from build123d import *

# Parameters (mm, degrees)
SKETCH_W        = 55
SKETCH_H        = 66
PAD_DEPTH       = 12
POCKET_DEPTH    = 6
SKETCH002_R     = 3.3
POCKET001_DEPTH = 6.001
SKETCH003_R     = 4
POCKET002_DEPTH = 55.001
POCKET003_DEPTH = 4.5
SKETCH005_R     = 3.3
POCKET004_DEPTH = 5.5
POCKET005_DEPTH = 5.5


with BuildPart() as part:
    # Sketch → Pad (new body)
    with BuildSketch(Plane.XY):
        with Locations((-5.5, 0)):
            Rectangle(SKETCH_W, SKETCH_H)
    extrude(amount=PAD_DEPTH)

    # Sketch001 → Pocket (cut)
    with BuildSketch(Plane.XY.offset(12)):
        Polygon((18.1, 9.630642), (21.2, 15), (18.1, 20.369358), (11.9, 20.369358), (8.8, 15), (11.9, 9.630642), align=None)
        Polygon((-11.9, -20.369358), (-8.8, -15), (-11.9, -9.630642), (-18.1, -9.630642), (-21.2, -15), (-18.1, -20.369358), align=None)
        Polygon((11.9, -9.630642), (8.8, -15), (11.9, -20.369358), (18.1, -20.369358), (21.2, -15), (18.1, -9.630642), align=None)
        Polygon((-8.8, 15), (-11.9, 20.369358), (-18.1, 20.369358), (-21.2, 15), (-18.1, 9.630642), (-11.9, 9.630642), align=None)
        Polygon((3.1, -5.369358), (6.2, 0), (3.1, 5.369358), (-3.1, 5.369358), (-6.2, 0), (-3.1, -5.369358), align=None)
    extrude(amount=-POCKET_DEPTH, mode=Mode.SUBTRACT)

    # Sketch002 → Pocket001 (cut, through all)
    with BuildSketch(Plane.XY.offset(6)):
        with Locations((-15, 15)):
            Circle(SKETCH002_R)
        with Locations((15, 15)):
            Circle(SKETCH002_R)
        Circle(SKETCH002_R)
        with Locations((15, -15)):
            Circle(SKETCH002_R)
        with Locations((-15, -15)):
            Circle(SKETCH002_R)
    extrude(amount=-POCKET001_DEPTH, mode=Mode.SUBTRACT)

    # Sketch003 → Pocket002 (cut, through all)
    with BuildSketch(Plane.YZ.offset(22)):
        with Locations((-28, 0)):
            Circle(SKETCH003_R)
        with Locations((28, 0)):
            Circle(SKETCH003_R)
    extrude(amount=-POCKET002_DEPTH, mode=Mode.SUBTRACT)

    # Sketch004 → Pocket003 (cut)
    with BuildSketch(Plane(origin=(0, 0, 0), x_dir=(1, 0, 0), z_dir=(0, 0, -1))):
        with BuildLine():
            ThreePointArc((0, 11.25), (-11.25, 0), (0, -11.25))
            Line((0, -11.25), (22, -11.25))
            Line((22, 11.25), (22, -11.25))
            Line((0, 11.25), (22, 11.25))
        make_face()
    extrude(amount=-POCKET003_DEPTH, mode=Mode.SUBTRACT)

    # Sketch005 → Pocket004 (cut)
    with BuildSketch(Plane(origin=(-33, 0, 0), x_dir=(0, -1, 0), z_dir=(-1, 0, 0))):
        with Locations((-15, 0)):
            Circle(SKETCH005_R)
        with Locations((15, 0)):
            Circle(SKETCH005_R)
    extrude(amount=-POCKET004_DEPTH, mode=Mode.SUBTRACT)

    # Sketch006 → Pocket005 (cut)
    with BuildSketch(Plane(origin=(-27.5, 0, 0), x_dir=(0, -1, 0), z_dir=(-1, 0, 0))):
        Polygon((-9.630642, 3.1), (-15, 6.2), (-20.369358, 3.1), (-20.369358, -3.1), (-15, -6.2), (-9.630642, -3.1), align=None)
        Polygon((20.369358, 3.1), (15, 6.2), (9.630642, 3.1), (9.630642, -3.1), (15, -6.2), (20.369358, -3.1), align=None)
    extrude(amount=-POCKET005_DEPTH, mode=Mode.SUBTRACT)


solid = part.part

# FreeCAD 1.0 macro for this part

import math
import FreeCAD as App
import Part
import Sketcher
Q = App.Units.Quantity

doc = App.newDocument("Part")
body = doc.addObject("PartDesign::Body", "Body")

sketch1 = body.newObject("Sketcher::SketchObject", "Sketch")
sketch1.AttachmentSupport = (doc.getObject("XY_Plane"), [""])
sketch1.MapMode = "FlatFace"
sketch1.addGeometry([
    Part.LineSegment(App.Vector(-33, 33, 0), App.Vector(-33, -33, 0)),
    Part.LineSegment(App.Vector(-33, -33, 0), App.Vector(22, -33, 0)),
    Part.LineSegment(App.Vector(22, -33, 0), App.Vector(22, 33, 0)),
    Part.LineSegment(App.Vector(22, 33, 0), App.Vector(-33, 33, 0)),
], False)
sketch1.addConstraint([
    Sketcher.Constraint("Coincident", 0, 2, 1, 1),
    Sketcher.Constraint("Coincident", 1, 2, 2, 1),
    Sketcher.Constraint("Coincident", 2, 2, 3, 1),
    Sketcher.Constraint("Coincident", 3, 2, 0, 1),
    Sketcher.Constraint("Vertical", 0),
    Sketcher.Constraint("Horizontal", 1),
    Sketcher.Constraint("Vertical", 2),
    Sketcher.Constraint("Horizontal", 3),
    Sketcher.Constraint("DistanceX", 1, 1, 1, 2, Q("55 mm")),
    Sketcher.Constraint("DistanceY", 0, 2, 0, 1, Q("66 mm")),
    Sketcher.Constraint("DistanceX", 0, 2, -1, 1, Q("33 mm")),
    Sketcher.Constraint("DistanceY", 0, 2, -1, 1, Q("33 mm")),
])
pad1 = body.newObject("PartDesign::Pad", "Pad")
pad1.Profile = sketch1
pad1.Length = 12

sketch2 = body.newObject("Sketcher::SketchObject", "Sketch001")
sketch2.AttachmentSupport = (doc.getObject("XY_Plane"), [""])
sketch2.MapMode = "FlatFace"
sketch2.AttachmentOffset = App.Placement(App.Vector(0, 0, 12), App.Rotation())
sketch2.addGeometry([
    Part.LineSegment(App.Vector(18, 10, 0), App.Vector(21, 15, 0)),
    Part.LineSegment(App.Vector(21, 15, 0), App.Vector(18, 20, 0)),
    Part.LineSegment(App.Vector(18, 20, 0), App.Vector(12, 20, 0)),
    Part.LineSegment(App.Vector(12, 20, 0), App.Vector(9, 15, 0)),
    Part.LineSegment(App.Vector(9, 15, 0), App.Vector(12, 10, 0)),
    Part.LineSegment(App.Vector(12, 10, 0), App.Vector(18, 10, 0)),
    Part.LineSegment(App.Vector(-12, -20, 0), App.Vector(-9, -15, 0)),
    Part.LineSegment(App.Vector(-9, -15, 0), App.Vector(-12, -10, 0)),
    Part.LineSegment(App.Vector(-12, -10, 0), App.Vector(-18, -10, 0)),
    Part.LineSegment(App.Vector(-18, -10, 0), App.Vector(-21, -15, 0)),
    Part.LineSegment(App.Vector(-21, -15, 0), App.Vector(-18, -20, 0)),
    Part.LineSegment(App.Vector(-18, -20, 0), App.Vector(-12, -20, 0)),
    Part.LineSegment(App.Vector(12, -10, 0), App.Vector(9, -15, 0)),
    Part.LineSegment(App.Vector(9, -15, 0), App.Vector(12, -20, 0)),
    Part.LineSegment(App.Vector(12, -20, 0), App.Vector(18, -20, 0)),
    Part.LineSegment(App.Vector(18, -20, 0), App.Vector(21, -15, 0)),
    Part.LineSegment(App.Vector(21, -15, 0), App.Vector(18, -10, 0)),
    Part.LineSegment(App.Vector(18, -10, 0), App.Vector(12, -10, 0)),
    Part.LineSegment(App.Vector(-9, 15, 0), App.Vector(-12, 20, 0)),
    Part.LineSegment(App.Vector(-12, 20, 0), App.Vector(-18, 20, 0)),
    Part.LineSegment(App.Vector(-18, 20, 0), App.Vector(-21, 15, 0)),
    Part.LineSegment(App.Vector(-21, 15, 0), App.Vector(-18, 10, 0)),
    Part.LineSegment(App.Vector(-18, 10, 0), App.Vector(-12, 10, 0)),
    Part.LineSegment(App.Vector(-12, 10, 0), App.Vector(-9, 15, 0)),
    Part.LineSegment(App.Vector(3, -5, 0), App.Vector(6, 0, 0)),
    Part.LineSegment(App.Vector(6, 0, 0), App.Vector(3, 5, 0)),
    Part.LineSegment(App.Vector(3, 5, 0), App.Vector(-3, 5, 0)),
    Part.LineSegment(App.Vector(-3, 5, 0), App.Vector(-6, 0, 0)),
    Part.LineSegment(App.Vector(-6, 0, 0), App.Vector(-3, -5, 0)),
    Part.LineSegment(App.Vector(-3, -5, 0), App.Vector(3, -5, 0)),
], False)
sketch2.addConstraint([
    Sketcher.Constraint("Coincident", 0, 2, 1, 1),
    Sketcher.Constraint("Coincident", 1, 2, 2, 1),
    Sketcher.Constraint("Coincident", 2, 2, 3, 1),
    Sketcher.Constraint("Coincident", 3, 2, 4, 1),
    Sketcher.Constraint("Coincident", 4, 2, 5, 1),
    Sketcher.Constraint("Coincident", 5, 2, 0, 1),
    Sketcher.Constraint("Coincident", 6, 2, 7, 1),
    Sketcher.Constraint("Coincident", 7, 2, 8, 1),
    Sketcher.Constraint("Coincident", 8, 2, 9, 1),
    Sketcher.Constraint("Coincident", 9, 2, 10, 1),
    Sketcher.Constraint("Coincident", 10, 2, 11, 1),
    Sketcher.Constraint("Coincident", 11, 2, 6, 1),
    Sketcher.Constraint("Coincident", 12, 2, 13, 1),
    Sketcher.Constraint("Coincident", 13, 2, 14, 1),
    Sketcher.Constraint("Coincident", 14, 2, 15, 1),
    Sketcher.Constraint("Coincident", 15, 2, 16, 1),
    Sketcher.Constraint("Coincident", 16, 2, 17, 1),
    Sketcher.Constraint("Coincident", 17, 2, 12, 1),
    Sketcher.Constraint("Coincident", 18, 2, 19, 1),
    Sketcher.Constraint("Coincident", 19, 2, 20, 1),
    Sketcher.Constraint("Coincident", 20, 2, 21, 1),
    Sketcher.Constraint("Coincident", 21, 2, 22, 1),
    Sketcher.Constraint("Coincident", 22, 2, 23, 1),
    Sketcher.Constraint("Coincident", 23, 2, 18, 1),
    Sketcher.Constraint("Coincident", 24, 2, 25, 1),
    Sketcher.Constraint("Coincident", 25, 2, 26, 1),
    Sketcher.Constraint("Coincident", 26, 2, 27, 1),
    Sketcher.Constraint("Coincident", 27, 2, 28, 1),
    Sketcher.Constraint("Coincident", 28, 2, 29, 1),
    Sketcher.Constraint("Coincident", 29, 2, 24, 1),
    Sketcher.Constraint("Horizontal", 2),
    Sketcher.Constraint("Horizontal", 5),
    Sketcher.Constraint("Horizontal", 8),
    Sketcher.Constraint("Horizontal", 11),
    Sketcher.Constraint("Horizontal", 14),
    Sketcher.Constraint("Horizontal", 17),
    Sketcher.Constraint("Horizontal", 19),
    Sketcher.Constraint("Horizontal", 22),
    Sketcher.Constraint("Horizontal", 26),
    Sketcher.Constraint("Horizontal", 29),
    Sketcher.Constraint("Symmetric", 3, 2, 6, 2, -1, 1),
    Sketcher.Constraint("Symmetric", 4, 2, 7, 2, -1, 1),
    Sketcher.Constraint("Symmetric", 0, 2, 9, 2, -1, 1),
    Sketcher.Constraint("Symmetric", 1, 2, 10, 2, -1, 1),
    Sketcher.Constraint("Symmetric", 13, 2, 18, 2, -1, 1),
    Sketcher.Constraint("Symmetric", 15, 2, 20, 2, -1, 1),
    Sketcher.Constraint("Symmetric", 16, 2, 21, 2, -1, 1),
    Sketcher.Constraint("Symmetric", 12, 2, 23, 2, -1, 1),
    Sketcher.Constraint("Symmetric", 24, 2, 27, 2, -1, 1),
    Sketcher.Constraint("Symmetric", 25, 2, 28, 2, -1, 1),
    Sketcher.Constraint("Symmetric", 6, 2, 12, 2, -2),
    Sketcher.Constraint("Symmetric", 11, 2, 13, 2, -2),
    Sketcher.Constraint("Symmetric", 9, 2, 15, 2, -2),
    Sketcher.Constraint("Symmetric", 8, 2, 16, 2, -2),
    Sketcher.Constraint("PointOnObject", 24, 2, -1),
    Sketcher.Constraint("Parallel", 0, 3),
    Sketcher.Constraint("Parallel", 1, 4),
    Sketcher.Constraint("Parallel", 3, 6),
    Sketcher.Constraint("Parallel", 6, 9),
    Sketcher.Constraint("Parallel", 9, 12),
    Sketcher.Constraint("Parallel", 10, 13),
    Sketcher.Constraint("Parallel", 12, 15),
    Sketcher.Constraint("Parallel", 15, 20),
    Sketcher.Constraint("Parallel", 20, 23),
    Sketcher.Constraint("Parallel", 23, 24),
    Sketcher.Constraint("Parallel", 21, 25),
    Sketcher.Constraint("Parallel", 24, 27),
    Sketcher.Constraint("Horizontal", 0, 2, 3, 2),
    Sketcher.Constraint("Vertical", 2, 2, 4, 2),
    Sketcher.Constraint("Equal", 22, 26),
    Sketcher.Constraint("Equal", 23, 24),
    Sketcher.Constraint("Angle", 0, Q("60.000002 deg")),
    Sketcher.Constraint("DistanceX", 2, 2, 2, 1, Q("6.2 mm")),
    Sketcher.Constraint("DistanceY", -1, 1, 0, 2, Q("15 mm")),
    Sketcher.Constraint("DistanceX", 6, 2, 0, 2, Q("30 mm")),
    Sketcher.Constraint("Distance", 0, Q("6.2 mm")),
])
pocket1 = body.newObject("PartDesign::Pocket", "Pocket")
pocket1.Profile = sketch2
pocket1.Length = 6

sketch3 = body.newObject("Sketcher::SketchObject", "Sketch002")
sketch3.AttachmentSupport = (doc.getObject("XY_Plane"), [""])
sketch3.MapMode = "FlatFace"
sketch3.AttachmentOffset = App.Placement(App.Vector(0, 0, 6), App.Rotation())
sketch3.addGeometry([
    Part.Circle(App.Vector(-15, 15, 0), App.Vector(0, 0, 1), 3.3),
    Part.Circle(App.Vector(15, 15, 0), App.Vector(0, 0, 1), 3.3),
    Part.Circle(App.Vector(0, 0, 0), App.Vector(0, 0, 1), 3.3),
    Part.Circle(App.Vector(15, -15, 0), App.Vector(0, 0, 1), 3.3),
    Part.Circle(App.Vector(-15, -15, 0), App.Vector(0, 0, 1), 3.3),
], False)
sketch3.addConstraint([
    Sketcher.Constraint("Coincident", 2, 3, -1, 1),
    Sketcher.Constraint("Equal", 0, 1),
    Sketcher.Constraint("Equal", 1, 2),
    Sketcher.Constraint("Equal", 2, 3),
    Sketcher.Constraint("Equal", 3, 4),
    Sketcher.Constraint("Symmetric", 0, 3, 3, 3, -1, 1),
    Sketcher.Constraint("Symmetric", 1, 3, 4, 3, -1, 1),
    Sketcher.Constraint("Symmetric", 0, 3, 1, 3, -2),
    Sketcher.Constraint("Diameter", 0, Q("6.6 mm")),
    Sketcher.Constraint("DistanceX", 0, 3, -1, 1, Q("15 mm")),
    Sketcher.Constraint("DistanceY", -1, 1, 0, 3, Q("15 mm")),
])
pocket2 = body.newObject("PartDesign::Pocket", "Pocket001")
pocket2.Profile = sketch3
pocket2.Type = "ThroughAll"

sketch4 = body.newObject("Sketcher::SketchObject", "Sketch003")
sketch4.AttachmentSupport = (doc.getObject("YZ_Plane"), [""])
sketch4.MapMode = "FlatFace"
sketch4.AttachmentOffset = App.Placement(App.Vector(0, 0, 22), App.Rotation())
sketch4.addGeometry([
    Part.Circle(App.Vector(-28, 0, 0), App.Vector(0, 0, 1), 4),
    Part.Circle(App.Vector(28, 0, 0), App.Vector(0, 0, 1), 4),
], False)
sketch4.addConstraint([
    Sketcher.Constraint("Equal", 0, 1),
    Sketcher.Constraint("Symmetric", 0, 3, 1, 3, -1, 1),
    Sketcher.Constraint("PointOnObject", 0, 3, -1),
    Sketcher.Constraint("Diameter", 0, Q("8 mm")),
    Sketcher.Constraint("DistanceX", 0, 3, -1, 1, Q("28 mm")),
])
pocket3 = body.newObject("PartDesign::Pocket", "Pocket002")
pocket3.Profile = sketch4
pocket3.Type = "ThroughAll"

sketch5 = body.newObject("Sketcher::SketchObject", "Sketch004")
sketch5.AttachmentSupport = (doc.getObject("XY_Plane"), [""])
sketch5.MapMode = "FlatFace"
sketch5.addGeometry([
    Part.ArcOfCircle(Part.Circle(App.Vector(0, 0, 0), App.Vector(0, 0, 1), 11), math.radians(90), math.radians(270)),
    Part.LineSegment(App.Vector(0, 11, 0), App.Vector(22, 11, 0)),
    Part.LineSegment(App.Vector(22, 11, 0), App.Vector(22, -11, 0)),
    Part.LineSegment(App.Vector(22, -11, 0), App.Vector(0, -11, 0)),
], False)
sketch5.addConstraint([
    Sketcher.Constraint("Tangent", 0, 1, 1, 1),
    Sketcher.Constraint("Coincident", 1, 2, 2, 1),
    Sketcher.Constraint("Coincident", 2, 2, 3, 1),
    Sketcher.Constraint("Tangent", 3, 2, 0, 2),
    Sketcher.Constraint("Horizontal", 1),
    Sketcher.Constraint("Vertical", 2),
    Sketcher.Constraint("Horizontal", 3),
    Sketcher.Constraint("Coincident", 0, 3, -1, 1),
    Sketcher.Constraint("DistanceX", 1, 1, 1, 2, Q("22 mm")),
    Sketcher.Constraint("Radius", 0, Q("11.25 mm")),
])
pocket4 = body.newObject("PartDesign::Pocket", "Pocket003")
pocket4.Profile = sketch5
pocket4.Length = 4.5
pocket4.Reversed = True

sketch6 = body.newObject("Sketcher::SketchObject", "Sketch005")
sketch6.AttachmentSupport = (doc.getObject("YZ_Plane"), [""])
sketch6.MapMode = "FlatFace"
sketch6.AttachmentOffset = App.Placement(App.Vector(0, 0, -33), App.Rotation())
sketch6.addGeometry([
    Part.Circle(App.Vector(15, 0, 0), App.Vector(0, 0, 1), 3.3),
    Part.Circle(App.Vector(-15, 0, 0), App.Vector(0, 0, 1), 3.3),
], False)
sketch6.addConstraint([
    Sketcher.Constraint("Equal", 0, 1),
    Sketcher.Constraint("Symmetric", 0, 3, 1, 3, -1, 1),
    Sketcher.Constraint("PointOnObject", 0, 3, -1),
    Sketcher.Constraint("Diameter", 0, Q("6.6 mm")),
    Sketcher.Constraint("DistanceX", -1, 1, 0, 3, Q("15 mm")),
])
pocket5 = body.newObject("PartDesign::Pocket", "Pocket004")
pocket5.Profile = sketch6
pocket5.Length = 5.5
pocket5.Reversed = True

sketch7 = body.newObject("Sketcher::SketchObject", "Sketch006")
sketch7.AttachmentSupport = (doc.getObject("YZ_Plane"), [""])
sketch7.MapMode = "FlatFace"
sketch7.AttachmentOffset = App.Placement(App.Vector(0, 0, -27.5), App.Rotation())
sketch7.addGeometry([
    Part.LineSegment(App.Vector(10, 3, 0), App.Vector(15, 6, 0)),
    Part.LineSegment(App.Vector(15, 6, 0), App.Vector(20, 3, 0)),
    Part.LineSegment(App.Vector(20, 3, 0), App.Vector(20, -3, 0)),
    Part.LineSegment(App.Vector(20, -3, 0), App.Vector(15, -6, 0)),
    Part.LineSegment(App.Vector(15, -6, 0), App.Vector(10, -3, 0)),
    Part.LineSegment(App.Vector(10, -3, 0), App.Vector(10, 3, 0)),
    Part.LineSegment(App.Vector(-20, 3, 0), App.Vector(-15, 6, 0)),
    Part.LineSegment(App.Vector(-15, 6, 0), App.Vector(-10, 3, 0)),
    Part.LineSegment(App.Vector(-10, 3, 0), App.Vector(-10, -3, 0)),
    Part.LineSegment(App.Vector(-10, -3, 0), App.Vector(-15, -6, 0)),
    Part.LineSegment(App.Vector(-15, -6, 0), App.Vector(-20, -3, 0)),
    Part.LineSegment(App.Vector(-20, -3, 0), App.Vector(-20, 3, 0)),
], False)
sketch7.addConstraint([
    Sketcher.Constraint("Coincident", 0, 2, 1, 1),
    Sketcher.Constraint("Coincident", 1, 2, 2, 1),
    Sketcher.Constraint("Coincident", 2, 2, 3, 1),
    Sketcher.Constraint("Coincident", 3, 2, 4, 1),
    Sketcher.Constraint("Coincident", 4, 2, 5, 1),
    Sketcher.Constraint("Coincident", 5, 2, 0, 1),
    Sketcher.Constraint("Coincident", 6, 2, 7, 1),
    Sketcher.Constraint("Coincident", 7, 2, 8, 1),
    Sketcher.Constraint("Coincident", 8, 2, 9, 1),
    Sketcher.Constraint("Coincident", 9, 2, 10, 1),
    Sketcher.Constraint("Coincident", 10, 2, 11, 1),
    Sketcher.Constraint("Coincident", 11, 2, 6, 1),
    Sketcher.Constraint("Vertical", 2),
    Sketcher.Constraint("Vertical", 5),
    Sketcher.Constraint("Vertical", 8),
    Sketcher.Constraint("Vertical", 11),
    Sketcher.Constraint("Symmetric", 3, 2, 6, 2, -1, 1),
    Sketcher.Constraint("Symmetric", 4, 2, 7, 2, -1, 1),
    Sketcher.Constraint("Symmetric", 0, 2, 9, 2, -1, 1),
    Sketcher.Constraint("Symmetric", 1, 2, 10, 2, -1, 1),
    Sketcher.Constraint("Symmetric", 0, 2, 6, 2, -2),
    Sketcher.Constraint("Parallel", 0, 3),
    Sketcher.Constraint("Parallel", 1, 4),
    Sketcher.Constraint("Parallel", 3, 6),
    Sketcher.Constraint("Parallel", 6, 9),
    Sketcher.Constraint("Horizontal", 2, 2, 4, 2),
    Sketcher.Constraint("Horizontal", 1, 2, 5, 2),
    Sketcher.Constraint("Angle", 0, Q("29.999998 deg")),
    Sketcher.Constraint("DistanceY", 2, 2, 2, 1, Q("6.2 mm")),
    Sketcher.Constraint("DistanceX", -1, 1, 0, 2, Q("15 mm")),
    Sketcher.Constraint("Distance", 0, Q("6.2 mm")),
])
pocket6 = body.newObject("PartDesign::Pocket", "Pocket005")
pocket6.Profile = sketch7
pocket6.Length = 5.5
pocket6.Reversed = True

doc.recompute()
